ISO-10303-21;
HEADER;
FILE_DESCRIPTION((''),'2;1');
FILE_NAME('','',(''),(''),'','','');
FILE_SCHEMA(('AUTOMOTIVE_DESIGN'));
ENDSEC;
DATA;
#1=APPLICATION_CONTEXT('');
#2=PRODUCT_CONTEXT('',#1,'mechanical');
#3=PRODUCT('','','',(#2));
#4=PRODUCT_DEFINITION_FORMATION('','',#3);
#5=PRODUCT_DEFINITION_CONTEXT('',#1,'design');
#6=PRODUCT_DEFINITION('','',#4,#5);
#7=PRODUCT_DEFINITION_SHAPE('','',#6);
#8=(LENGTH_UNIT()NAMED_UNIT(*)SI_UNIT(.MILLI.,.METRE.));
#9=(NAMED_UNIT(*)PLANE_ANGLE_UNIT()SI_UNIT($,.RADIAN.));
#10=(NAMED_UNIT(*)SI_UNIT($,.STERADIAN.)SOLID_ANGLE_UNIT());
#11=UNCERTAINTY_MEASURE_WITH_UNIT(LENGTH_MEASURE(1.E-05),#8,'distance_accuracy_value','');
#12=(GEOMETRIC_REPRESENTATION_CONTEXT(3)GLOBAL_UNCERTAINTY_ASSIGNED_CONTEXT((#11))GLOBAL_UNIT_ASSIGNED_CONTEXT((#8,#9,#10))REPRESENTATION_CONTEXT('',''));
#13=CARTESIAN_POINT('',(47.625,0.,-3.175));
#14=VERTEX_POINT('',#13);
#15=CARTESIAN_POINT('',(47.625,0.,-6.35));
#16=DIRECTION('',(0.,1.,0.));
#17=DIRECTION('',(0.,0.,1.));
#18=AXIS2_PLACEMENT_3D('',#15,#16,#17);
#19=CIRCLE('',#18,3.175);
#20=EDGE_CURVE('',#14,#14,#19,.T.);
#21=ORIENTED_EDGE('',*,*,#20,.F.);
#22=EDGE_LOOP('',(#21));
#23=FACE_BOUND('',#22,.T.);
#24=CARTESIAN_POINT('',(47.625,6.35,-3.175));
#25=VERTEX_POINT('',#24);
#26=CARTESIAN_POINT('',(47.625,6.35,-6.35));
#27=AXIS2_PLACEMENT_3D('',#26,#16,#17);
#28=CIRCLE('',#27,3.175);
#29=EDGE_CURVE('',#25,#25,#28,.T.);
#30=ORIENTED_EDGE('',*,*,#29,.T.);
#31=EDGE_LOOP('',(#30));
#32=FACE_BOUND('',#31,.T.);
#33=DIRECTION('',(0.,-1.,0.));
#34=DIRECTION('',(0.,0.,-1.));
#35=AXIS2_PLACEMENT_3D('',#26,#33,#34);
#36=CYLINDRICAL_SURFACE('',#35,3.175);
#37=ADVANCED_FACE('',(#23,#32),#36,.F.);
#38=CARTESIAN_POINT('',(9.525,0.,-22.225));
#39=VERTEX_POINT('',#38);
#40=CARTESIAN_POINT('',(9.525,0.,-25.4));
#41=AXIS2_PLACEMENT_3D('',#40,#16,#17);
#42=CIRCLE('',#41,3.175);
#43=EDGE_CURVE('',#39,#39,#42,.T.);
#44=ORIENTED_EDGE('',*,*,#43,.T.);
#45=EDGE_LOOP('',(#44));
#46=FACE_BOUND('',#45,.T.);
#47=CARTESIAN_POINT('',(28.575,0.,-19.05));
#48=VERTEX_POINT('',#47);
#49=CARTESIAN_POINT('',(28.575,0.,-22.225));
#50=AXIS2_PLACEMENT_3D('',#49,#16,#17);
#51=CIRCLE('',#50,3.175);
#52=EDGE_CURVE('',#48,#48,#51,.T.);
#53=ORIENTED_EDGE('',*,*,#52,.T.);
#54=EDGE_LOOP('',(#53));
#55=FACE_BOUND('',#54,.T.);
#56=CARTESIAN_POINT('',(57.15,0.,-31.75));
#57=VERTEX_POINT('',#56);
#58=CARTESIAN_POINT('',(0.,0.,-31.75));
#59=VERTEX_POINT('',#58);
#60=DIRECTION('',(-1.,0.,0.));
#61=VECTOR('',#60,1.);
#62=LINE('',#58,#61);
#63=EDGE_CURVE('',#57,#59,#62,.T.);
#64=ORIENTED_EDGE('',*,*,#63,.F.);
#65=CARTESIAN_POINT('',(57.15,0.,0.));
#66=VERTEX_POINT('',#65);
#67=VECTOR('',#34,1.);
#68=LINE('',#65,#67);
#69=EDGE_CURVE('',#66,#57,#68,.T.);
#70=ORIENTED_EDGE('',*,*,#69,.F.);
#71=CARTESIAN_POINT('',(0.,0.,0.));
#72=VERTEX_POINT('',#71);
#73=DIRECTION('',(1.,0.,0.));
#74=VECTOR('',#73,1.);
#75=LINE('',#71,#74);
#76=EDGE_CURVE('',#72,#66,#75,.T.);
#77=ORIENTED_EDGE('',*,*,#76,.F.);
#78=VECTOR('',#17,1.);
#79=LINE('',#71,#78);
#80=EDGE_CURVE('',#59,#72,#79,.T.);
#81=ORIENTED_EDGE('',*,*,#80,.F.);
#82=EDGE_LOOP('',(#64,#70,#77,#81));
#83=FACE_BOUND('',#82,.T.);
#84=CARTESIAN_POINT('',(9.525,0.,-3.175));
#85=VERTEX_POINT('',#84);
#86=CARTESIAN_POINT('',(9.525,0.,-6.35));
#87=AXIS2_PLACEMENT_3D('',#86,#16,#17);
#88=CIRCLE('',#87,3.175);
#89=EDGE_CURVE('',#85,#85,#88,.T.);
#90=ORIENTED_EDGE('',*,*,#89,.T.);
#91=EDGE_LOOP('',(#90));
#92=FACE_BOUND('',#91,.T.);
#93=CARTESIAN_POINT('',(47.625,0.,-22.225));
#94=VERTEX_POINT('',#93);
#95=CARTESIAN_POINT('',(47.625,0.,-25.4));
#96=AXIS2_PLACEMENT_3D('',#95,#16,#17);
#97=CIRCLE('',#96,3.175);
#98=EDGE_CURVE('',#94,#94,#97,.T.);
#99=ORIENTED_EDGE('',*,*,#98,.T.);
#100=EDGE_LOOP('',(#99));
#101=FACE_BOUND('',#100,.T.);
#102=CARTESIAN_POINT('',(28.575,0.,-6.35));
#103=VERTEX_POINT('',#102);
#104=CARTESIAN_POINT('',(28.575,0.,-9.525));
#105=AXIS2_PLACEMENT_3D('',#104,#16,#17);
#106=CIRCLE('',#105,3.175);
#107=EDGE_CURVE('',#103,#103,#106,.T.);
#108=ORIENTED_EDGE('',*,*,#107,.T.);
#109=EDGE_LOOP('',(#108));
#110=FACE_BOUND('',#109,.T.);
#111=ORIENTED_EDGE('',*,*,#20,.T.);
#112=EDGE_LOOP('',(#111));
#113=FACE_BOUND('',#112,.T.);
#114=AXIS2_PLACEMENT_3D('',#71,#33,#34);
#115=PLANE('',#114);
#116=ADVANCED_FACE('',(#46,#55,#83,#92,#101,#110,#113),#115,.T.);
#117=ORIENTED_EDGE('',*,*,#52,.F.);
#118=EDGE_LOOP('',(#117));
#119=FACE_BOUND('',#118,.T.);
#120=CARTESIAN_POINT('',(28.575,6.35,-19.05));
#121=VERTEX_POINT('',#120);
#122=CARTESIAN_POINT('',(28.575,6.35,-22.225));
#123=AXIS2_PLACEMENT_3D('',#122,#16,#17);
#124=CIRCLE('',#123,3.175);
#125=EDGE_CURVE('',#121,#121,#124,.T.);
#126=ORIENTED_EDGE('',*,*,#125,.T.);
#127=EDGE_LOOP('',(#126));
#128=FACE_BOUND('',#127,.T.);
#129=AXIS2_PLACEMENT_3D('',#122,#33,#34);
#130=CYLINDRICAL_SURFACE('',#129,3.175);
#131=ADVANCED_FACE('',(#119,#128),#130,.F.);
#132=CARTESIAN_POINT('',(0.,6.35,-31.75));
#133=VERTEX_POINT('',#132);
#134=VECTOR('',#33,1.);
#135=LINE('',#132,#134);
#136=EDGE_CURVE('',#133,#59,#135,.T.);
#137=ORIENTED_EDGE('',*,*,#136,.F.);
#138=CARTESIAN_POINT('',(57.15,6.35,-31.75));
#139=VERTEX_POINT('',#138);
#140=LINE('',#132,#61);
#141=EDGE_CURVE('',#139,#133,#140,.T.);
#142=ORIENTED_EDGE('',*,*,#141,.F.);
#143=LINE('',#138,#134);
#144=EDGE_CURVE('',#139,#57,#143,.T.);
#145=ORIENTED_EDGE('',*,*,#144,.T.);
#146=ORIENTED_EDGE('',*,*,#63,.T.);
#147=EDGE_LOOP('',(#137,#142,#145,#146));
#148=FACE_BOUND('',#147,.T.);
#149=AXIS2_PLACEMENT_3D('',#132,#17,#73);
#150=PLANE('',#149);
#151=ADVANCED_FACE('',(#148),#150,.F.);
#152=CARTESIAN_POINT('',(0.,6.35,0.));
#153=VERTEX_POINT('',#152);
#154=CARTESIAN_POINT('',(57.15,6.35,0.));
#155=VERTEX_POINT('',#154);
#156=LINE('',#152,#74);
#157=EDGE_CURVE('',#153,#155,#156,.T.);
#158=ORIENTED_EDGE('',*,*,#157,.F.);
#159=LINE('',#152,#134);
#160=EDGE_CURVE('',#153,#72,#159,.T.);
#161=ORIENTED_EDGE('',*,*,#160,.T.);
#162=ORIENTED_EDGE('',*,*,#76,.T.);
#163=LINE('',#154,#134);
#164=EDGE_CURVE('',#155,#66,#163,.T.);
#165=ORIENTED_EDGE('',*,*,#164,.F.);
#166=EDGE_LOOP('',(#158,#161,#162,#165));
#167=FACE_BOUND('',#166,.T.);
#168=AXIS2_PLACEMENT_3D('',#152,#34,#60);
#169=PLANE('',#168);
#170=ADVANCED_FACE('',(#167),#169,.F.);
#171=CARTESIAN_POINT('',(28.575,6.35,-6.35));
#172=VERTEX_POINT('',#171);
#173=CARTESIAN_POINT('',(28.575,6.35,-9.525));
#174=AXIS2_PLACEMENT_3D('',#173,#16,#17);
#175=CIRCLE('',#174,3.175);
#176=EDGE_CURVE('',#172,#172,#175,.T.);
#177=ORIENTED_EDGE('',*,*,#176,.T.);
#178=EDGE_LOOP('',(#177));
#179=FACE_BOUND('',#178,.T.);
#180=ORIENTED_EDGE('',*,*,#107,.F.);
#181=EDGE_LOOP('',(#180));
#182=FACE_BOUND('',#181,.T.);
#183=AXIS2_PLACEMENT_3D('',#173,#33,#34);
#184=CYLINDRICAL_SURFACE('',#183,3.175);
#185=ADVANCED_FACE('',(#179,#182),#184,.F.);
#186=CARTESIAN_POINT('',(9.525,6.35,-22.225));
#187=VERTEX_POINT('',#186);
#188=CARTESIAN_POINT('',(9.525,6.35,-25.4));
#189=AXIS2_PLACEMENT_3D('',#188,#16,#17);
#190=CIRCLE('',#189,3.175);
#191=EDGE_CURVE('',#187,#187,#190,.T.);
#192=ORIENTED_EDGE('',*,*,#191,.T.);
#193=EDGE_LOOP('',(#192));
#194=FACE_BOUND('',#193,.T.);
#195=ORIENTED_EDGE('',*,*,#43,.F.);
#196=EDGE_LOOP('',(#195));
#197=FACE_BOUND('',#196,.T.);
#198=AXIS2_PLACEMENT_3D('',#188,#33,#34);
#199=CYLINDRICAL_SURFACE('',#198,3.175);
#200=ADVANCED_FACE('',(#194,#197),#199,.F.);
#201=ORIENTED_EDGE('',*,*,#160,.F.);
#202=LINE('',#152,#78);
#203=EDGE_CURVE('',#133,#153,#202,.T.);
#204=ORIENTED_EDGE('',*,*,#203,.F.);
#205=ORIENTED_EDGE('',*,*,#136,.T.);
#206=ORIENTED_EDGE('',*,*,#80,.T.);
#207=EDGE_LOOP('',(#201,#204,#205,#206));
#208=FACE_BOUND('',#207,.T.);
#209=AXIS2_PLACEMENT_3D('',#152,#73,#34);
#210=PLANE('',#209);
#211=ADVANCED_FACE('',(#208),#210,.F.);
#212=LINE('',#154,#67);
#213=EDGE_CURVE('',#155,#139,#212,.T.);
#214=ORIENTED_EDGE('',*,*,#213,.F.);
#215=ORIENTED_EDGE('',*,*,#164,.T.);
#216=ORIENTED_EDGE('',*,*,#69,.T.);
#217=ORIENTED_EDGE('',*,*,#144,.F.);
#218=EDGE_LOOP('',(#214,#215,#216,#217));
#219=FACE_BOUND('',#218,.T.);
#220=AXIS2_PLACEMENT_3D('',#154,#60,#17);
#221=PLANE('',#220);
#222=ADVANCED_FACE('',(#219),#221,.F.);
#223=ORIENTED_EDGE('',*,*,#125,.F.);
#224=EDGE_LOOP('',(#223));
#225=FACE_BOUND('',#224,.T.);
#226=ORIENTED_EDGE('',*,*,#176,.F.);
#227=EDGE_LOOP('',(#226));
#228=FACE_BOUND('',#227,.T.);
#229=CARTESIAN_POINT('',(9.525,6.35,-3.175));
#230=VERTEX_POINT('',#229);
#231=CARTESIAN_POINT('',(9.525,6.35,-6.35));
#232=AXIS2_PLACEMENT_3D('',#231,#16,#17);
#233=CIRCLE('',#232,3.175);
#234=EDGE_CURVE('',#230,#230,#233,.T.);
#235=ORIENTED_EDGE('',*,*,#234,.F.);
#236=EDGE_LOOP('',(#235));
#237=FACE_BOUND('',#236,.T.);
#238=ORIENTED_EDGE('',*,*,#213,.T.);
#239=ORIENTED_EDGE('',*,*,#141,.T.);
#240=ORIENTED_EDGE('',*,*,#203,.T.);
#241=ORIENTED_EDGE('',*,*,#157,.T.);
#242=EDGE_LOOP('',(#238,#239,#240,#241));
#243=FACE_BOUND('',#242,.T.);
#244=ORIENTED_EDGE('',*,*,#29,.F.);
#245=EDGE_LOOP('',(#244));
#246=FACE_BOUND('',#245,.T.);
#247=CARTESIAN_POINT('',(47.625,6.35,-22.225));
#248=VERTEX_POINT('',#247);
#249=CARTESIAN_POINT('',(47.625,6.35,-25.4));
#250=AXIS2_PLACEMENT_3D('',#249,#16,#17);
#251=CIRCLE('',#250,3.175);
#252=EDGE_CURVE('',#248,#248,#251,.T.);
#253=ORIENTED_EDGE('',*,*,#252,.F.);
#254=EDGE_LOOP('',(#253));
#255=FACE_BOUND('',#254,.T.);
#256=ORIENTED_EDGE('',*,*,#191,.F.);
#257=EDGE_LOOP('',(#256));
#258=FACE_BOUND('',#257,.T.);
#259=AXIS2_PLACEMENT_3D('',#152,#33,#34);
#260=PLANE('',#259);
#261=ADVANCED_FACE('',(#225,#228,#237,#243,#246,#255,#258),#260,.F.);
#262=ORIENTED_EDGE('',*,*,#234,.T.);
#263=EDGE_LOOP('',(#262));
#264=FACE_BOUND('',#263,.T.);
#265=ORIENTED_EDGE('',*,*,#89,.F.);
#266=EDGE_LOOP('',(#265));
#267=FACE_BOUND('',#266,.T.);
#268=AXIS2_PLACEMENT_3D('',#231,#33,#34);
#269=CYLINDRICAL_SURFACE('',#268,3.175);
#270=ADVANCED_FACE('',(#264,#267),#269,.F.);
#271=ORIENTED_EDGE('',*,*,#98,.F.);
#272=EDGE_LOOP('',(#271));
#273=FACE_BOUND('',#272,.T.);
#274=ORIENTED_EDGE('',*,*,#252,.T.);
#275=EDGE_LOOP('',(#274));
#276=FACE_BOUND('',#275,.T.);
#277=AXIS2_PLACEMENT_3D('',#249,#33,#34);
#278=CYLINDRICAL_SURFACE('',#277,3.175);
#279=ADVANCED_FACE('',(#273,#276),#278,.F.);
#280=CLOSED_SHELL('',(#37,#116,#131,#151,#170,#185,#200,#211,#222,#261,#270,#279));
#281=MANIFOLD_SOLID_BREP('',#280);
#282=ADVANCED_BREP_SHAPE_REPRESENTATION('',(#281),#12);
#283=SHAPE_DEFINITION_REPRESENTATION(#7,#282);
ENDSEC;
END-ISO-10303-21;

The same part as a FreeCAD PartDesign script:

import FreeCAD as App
import Part
import Sketcher

V = App.Vector
Q = App.Units.Quantity


def add_polygon(sketch, points):
    """Adds a closed chain of lines whose ends are joined by coincident constraints."""
    first, n = sketch.GeometryCount, len(points)
    for a, b in zip(points, points[1:] + points[:1]):
        sketch.addGeometry(Part.LineSegment(App.Vector(*a, 0), App.Vector(*b, 0)), False)
    for i in range(n):
        sketch.addConstraint(Sketcher.Constraint("Coincident", first + i, 2, first + (i + 1) % n, 1))

doc = App.newDocument("Part")
params = doc.addObject("Spreadsheet::Sheet", "Params")
for row, (alias, value) in enumerate([
    ("sketch1_diameter", "0.25 in"),
    ("sketch1_width", "2.25 in"),
    ("sketch1_height", "1.25 in"),
    ("pad1_length", "0.25 in"),
], start=1):
    params.set(f"A{row}", alias)
    params.set(f"B{row}", "=" + value)
    params.setAlias(f"B{row}", alias)

body = doc.addObject("PartDesign::Body", "Body")

# Sketch on XZ plane
sketch1 = body.newObject("Sketcher::SketchObject", "Sketch")
sketch1.AttachmentSupport = (doc.getObject("XZ_Plane"), [""])
sketch1.MapMode = "FlatFace"
add_polygon(sketch1, [(0, -31.8), (0, 0), (57.1, 0), (57.1, -31.8)])  # lines 0-3
sketch1.addGeometry(Part.Circle(V(9.5, -6.3, 0), V(0, 0, 1), 3.2), False)  # 4
sketch1.addGeometry(Part.Circle(V(28.6, -9.5, 0), V(0, 0, 1), 3.2), False)  # 5
sketch1.addGeometry(Part.Circle(V(47.6, -6.3, 0), V(0, 0, 1), 3.2), False)  # 6
sketch1.addGeometry(Part.Circle(V(9.5, -25.4, 0), V(0, 0, 1), 3.2), False)  # 7
sketch1.addGeometry(Part.Circle(V(28.6, -22.2, 0), V(0, 0, 1), 3.2), False)  # 8
sketch1.addGeometry(Part.Circle(V(47.6, -25.4, 0), V(0, 0, 1), 3.2), False)  # 9
sketch1.addConstraint([
    Sketcher.Constraint("Vertical", 0),
    Sketcher.Constraint("Horizontal", 1),
    Sketcher.Constraint("Vertical", 2),
    Sketcher.Constraint("Horizontal", 3),
    Sketcher.Constraint("Coincident", 0, 2, -1, 1),
    Sketcher.Constraint("Equal", 4, 5),
    Sketcher.Constraint("Equal", 5, 6),
    Sketcher.Constraint("Equal", 6, 7),
    Sketcher.Constraint("Equal", 7, 8),
    Sketcher.Constraint("Equal", 8, 9),
    Sketcher.Constraint("Horizontal", 4, 3, 6, 3),
    Sketcher.Constraint("Horizontal", 7, 3, 9, 3),
    Sketcher.Constraint("Vertical", 4, 3, 7, 3),
    Sketcher.Constraint("Vertical", 5, 3, 8, 3),
    Sketcher.Constraint("Vertical", 6, 3, 9, 3),
    Sketcher.Constraint("Diameter", 4, Q("0.25 in")),
    Sketcher.Constraint("DistanceY", 7, 3, -1, 1, Q("1 in")),
    Sketcher.Constraint("DistanceY", 2, 2, 6, 3, Q("1 in")),
    Sketcher.Constraint("DistanceX", 1, 1, 1, 2, Q("2.25 in")),
    Sketcher.Constraint("DistanceY", 0, 1, 0, 2, Q("1.25 in")),
    Sketcher.Constraint("DistanceX", 4, 3, 6, 3, Q("1.5 in")),
    Sketcher.Constraint("DistanceY", 8, 3, 5, 3, Q("0.5 in")),
    Sketcher.Constraint("DistanceX", 4, 3, 5, 3, Q("0.75 in")),
    Sketcher.Constraint("DistanceX", -1, 1, 4, 3, Q("0.375 in")),
    Sketcher.Constraint("DistanceY", 5, 3, -1, 1, Q("0.375 in")),
])
sketch1.setExpression("Constraints[19]", "Params.sketch1_diameter")
sketch1.setExpression("Constraints[22]", "Params.sketch1_width")
sketch1.setExpression("Constraints[23]", "Params.sketch1_height")
pad1 = body.newObject("PartDesign::Pad", "Pad")
pad1.Profile = sketch1
pad1.setExpression("Length", "Params.pad1_length")
pad1.Reversed = True

doc.recompute()
